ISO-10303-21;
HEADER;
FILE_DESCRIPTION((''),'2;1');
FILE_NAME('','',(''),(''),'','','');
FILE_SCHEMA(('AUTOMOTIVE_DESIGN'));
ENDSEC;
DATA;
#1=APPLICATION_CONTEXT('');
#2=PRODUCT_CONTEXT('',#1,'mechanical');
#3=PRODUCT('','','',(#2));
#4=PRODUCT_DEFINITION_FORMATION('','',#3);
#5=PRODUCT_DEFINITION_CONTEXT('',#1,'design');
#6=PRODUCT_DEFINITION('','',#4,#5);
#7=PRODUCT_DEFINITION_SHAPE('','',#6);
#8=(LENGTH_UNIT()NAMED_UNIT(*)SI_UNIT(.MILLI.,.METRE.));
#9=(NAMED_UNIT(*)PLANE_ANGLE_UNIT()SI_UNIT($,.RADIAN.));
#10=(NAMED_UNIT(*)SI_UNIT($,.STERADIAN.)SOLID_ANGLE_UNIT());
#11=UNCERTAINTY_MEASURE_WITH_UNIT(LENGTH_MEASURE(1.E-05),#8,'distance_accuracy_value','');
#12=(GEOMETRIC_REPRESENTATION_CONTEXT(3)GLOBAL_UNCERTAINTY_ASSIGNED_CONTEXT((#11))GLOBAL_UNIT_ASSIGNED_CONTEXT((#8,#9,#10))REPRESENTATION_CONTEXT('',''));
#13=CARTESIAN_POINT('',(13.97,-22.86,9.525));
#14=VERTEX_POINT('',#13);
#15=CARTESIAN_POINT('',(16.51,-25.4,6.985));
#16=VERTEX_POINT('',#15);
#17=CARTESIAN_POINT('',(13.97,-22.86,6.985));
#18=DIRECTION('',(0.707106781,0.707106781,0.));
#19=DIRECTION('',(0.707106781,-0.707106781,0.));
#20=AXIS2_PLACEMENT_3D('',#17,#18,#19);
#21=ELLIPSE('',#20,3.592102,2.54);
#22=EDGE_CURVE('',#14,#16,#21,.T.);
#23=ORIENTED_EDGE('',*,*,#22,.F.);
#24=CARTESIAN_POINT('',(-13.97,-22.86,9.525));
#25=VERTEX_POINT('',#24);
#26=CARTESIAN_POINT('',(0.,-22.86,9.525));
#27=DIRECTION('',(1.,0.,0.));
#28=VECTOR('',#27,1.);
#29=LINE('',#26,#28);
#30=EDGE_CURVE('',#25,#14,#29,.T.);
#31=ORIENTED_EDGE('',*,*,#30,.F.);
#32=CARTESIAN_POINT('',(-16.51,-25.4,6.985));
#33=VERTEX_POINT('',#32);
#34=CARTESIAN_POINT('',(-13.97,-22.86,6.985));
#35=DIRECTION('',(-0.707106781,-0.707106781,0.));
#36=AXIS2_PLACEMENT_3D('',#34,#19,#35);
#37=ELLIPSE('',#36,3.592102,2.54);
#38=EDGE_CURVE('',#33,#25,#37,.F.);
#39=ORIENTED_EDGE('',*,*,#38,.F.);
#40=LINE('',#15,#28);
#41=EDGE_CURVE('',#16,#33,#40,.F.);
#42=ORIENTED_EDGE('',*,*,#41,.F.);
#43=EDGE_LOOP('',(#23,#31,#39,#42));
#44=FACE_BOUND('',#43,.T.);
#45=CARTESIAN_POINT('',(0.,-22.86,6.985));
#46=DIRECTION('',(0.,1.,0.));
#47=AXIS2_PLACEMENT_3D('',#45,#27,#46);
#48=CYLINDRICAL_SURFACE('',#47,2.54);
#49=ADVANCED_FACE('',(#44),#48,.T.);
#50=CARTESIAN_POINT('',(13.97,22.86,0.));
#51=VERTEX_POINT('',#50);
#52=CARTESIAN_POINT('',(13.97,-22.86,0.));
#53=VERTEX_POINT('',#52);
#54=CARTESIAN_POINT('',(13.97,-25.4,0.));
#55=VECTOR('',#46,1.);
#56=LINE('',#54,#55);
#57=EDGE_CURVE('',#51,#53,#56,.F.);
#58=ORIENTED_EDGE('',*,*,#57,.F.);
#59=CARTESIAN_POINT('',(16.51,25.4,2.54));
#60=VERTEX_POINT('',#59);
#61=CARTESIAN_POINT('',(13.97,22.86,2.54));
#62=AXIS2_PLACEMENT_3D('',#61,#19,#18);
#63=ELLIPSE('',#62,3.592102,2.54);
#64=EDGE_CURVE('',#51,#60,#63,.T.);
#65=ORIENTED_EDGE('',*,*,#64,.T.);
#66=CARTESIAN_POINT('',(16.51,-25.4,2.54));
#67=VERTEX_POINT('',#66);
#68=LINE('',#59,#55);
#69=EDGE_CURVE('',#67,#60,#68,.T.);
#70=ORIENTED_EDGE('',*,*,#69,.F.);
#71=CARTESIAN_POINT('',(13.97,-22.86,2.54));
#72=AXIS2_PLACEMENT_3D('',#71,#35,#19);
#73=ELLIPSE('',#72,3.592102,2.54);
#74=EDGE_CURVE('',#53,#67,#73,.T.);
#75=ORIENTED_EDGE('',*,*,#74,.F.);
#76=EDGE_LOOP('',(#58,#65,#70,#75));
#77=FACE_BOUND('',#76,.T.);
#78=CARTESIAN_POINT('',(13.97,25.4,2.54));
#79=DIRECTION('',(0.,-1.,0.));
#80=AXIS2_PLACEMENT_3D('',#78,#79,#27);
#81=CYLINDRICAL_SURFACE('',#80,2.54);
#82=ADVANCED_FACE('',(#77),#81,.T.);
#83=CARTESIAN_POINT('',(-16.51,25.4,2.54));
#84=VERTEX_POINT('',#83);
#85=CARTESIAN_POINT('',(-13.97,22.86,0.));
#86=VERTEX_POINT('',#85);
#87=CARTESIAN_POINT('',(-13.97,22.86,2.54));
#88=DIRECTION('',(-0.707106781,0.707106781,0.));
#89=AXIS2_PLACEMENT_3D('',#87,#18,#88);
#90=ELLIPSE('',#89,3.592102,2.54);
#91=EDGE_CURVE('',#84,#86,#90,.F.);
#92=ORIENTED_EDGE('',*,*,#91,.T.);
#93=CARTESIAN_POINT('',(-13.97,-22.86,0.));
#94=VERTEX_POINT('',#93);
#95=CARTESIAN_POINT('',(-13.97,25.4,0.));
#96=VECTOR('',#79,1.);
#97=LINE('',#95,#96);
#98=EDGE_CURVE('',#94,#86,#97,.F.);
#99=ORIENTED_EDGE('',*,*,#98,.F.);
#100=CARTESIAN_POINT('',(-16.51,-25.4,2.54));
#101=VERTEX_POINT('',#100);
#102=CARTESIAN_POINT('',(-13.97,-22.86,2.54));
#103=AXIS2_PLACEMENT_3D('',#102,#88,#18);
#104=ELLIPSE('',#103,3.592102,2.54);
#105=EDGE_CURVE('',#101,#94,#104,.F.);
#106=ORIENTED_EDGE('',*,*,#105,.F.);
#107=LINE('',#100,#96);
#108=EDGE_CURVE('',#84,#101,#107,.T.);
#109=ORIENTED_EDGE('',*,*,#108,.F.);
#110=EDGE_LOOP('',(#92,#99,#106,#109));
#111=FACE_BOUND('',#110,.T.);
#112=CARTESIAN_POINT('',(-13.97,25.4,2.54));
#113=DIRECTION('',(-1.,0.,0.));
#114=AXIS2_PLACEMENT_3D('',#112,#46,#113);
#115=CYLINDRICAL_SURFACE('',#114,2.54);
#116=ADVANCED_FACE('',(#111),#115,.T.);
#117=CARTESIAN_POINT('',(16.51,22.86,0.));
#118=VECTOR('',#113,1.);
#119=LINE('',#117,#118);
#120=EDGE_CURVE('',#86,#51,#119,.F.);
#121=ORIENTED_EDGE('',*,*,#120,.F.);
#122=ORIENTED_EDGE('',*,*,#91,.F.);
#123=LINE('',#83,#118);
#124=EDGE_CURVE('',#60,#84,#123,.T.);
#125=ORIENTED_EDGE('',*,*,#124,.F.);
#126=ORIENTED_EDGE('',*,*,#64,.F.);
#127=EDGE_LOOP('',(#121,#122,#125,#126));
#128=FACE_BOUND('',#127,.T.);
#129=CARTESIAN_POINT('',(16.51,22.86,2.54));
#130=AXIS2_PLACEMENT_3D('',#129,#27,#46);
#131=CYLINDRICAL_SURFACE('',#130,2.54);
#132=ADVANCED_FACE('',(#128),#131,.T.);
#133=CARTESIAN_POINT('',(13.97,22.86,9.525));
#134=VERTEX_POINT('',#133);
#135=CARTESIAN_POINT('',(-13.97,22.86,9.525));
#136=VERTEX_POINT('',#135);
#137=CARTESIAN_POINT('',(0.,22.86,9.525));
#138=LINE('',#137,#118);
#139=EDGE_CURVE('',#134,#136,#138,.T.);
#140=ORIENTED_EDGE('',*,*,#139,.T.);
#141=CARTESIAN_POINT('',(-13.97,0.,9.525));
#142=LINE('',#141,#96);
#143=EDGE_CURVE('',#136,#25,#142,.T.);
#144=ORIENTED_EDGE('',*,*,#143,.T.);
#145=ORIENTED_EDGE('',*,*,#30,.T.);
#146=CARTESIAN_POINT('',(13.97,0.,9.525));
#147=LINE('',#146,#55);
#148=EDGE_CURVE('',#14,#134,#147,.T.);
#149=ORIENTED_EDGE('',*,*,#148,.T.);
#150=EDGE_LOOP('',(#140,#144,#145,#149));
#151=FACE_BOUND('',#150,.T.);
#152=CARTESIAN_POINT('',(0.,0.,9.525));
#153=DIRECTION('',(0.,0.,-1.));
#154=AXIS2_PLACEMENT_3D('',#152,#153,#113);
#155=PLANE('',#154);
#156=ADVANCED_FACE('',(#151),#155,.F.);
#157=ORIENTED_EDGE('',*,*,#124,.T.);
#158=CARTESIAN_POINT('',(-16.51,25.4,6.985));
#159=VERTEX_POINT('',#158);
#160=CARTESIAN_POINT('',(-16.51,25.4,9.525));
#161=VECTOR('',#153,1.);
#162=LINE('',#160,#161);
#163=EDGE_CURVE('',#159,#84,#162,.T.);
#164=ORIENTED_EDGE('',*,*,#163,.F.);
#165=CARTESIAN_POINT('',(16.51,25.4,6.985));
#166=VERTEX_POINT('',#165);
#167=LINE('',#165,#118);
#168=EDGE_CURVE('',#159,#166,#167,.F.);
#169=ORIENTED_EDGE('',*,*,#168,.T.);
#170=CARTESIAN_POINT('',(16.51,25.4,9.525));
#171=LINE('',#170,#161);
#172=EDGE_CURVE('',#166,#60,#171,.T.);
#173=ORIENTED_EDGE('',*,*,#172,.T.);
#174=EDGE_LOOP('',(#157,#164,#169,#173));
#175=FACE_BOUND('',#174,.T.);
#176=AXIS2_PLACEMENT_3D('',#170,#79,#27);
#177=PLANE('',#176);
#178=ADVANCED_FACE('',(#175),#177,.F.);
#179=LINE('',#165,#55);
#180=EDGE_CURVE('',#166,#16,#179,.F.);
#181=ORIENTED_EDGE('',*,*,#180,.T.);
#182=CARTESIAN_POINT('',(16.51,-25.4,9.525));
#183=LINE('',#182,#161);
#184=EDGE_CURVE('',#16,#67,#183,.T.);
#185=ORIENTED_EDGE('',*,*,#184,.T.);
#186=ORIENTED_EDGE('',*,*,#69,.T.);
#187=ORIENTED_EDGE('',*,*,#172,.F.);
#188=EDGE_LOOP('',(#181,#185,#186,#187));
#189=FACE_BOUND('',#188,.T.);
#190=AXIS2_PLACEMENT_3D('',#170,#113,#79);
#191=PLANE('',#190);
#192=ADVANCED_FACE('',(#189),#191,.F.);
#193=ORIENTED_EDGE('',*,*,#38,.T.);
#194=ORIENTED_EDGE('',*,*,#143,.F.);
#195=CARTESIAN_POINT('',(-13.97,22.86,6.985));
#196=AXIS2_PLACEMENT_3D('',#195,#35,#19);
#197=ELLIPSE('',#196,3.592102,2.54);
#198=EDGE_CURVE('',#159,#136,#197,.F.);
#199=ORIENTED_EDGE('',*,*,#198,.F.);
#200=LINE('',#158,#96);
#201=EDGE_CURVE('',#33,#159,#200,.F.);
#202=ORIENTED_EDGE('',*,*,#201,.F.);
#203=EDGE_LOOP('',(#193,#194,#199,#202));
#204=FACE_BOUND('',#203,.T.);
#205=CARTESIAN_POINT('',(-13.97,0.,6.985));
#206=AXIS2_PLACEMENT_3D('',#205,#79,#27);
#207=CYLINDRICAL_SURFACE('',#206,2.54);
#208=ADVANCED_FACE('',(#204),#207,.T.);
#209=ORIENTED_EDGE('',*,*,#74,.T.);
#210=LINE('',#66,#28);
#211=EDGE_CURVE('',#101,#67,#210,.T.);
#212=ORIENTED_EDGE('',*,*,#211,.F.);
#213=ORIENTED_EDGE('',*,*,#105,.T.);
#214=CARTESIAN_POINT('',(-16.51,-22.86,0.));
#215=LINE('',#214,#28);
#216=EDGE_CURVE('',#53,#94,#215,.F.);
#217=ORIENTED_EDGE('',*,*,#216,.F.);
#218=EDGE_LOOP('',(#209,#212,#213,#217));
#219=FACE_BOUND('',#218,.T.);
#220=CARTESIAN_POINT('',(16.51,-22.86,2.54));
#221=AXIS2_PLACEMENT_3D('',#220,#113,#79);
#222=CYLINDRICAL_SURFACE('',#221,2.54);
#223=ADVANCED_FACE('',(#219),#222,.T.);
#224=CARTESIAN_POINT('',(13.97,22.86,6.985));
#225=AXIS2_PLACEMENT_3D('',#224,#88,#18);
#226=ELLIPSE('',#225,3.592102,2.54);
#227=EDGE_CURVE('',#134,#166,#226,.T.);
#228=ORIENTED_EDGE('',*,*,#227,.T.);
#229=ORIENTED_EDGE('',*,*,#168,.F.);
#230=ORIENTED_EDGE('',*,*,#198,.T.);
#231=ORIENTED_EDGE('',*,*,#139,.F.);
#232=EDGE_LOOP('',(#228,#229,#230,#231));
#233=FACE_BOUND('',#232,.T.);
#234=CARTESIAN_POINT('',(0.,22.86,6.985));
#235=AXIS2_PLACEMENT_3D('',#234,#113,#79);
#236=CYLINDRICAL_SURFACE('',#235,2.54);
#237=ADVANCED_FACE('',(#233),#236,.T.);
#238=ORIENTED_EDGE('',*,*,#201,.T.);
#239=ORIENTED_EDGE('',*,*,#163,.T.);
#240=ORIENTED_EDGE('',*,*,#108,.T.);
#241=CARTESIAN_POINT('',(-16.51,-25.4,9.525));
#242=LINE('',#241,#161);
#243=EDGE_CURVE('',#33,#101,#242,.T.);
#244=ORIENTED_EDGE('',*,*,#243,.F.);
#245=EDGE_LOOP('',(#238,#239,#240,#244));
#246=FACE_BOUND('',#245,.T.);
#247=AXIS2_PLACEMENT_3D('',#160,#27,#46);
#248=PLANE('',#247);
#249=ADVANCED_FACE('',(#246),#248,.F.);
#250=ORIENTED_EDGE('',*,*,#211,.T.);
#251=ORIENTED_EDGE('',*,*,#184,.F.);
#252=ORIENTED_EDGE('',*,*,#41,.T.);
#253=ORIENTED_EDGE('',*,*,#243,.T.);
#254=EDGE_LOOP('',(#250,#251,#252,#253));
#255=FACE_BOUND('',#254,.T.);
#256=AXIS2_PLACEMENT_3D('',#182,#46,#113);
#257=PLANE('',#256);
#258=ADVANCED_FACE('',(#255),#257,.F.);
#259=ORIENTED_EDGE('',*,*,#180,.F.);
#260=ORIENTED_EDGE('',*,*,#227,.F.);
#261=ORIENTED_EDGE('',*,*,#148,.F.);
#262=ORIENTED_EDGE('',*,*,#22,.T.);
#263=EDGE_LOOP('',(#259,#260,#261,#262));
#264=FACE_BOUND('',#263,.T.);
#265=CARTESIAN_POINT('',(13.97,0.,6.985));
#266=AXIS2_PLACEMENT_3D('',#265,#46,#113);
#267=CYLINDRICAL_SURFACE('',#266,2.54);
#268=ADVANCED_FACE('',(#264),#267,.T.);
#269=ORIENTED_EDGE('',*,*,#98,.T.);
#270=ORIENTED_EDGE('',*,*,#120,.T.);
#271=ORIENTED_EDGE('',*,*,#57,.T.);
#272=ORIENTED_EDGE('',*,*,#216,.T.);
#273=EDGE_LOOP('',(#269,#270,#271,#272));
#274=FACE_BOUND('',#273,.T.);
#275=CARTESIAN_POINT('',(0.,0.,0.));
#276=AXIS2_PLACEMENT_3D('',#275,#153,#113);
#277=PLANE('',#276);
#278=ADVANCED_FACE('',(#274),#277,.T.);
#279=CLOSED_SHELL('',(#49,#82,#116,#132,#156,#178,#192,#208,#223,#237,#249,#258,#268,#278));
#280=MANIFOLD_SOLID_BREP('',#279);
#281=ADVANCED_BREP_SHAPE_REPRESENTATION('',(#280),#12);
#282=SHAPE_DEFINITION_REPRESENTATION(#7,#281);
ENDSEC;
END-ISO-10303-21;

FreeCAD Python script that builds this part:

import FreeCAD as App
import Part
import Sketcher
from FreeCAD import Vector
Q = App.Units.Quantity


def edges_at(feature, points):
    """Names of the edges that pass closest to the given points."""
    edges = feature.Shape.Edges
    near = lambda p: min(range(len(edges)), key=lambda i: edges[i].distToShape(Part.Vertex(*p))[0])
    return sorted({f"Edge{near(p) + 1}" for p in points})

doc = App.newDocument("Part")
body = doc.addObject("PartDesign::Body", "Body")

# Sketch on XY plane
sketch1 = body.newObject("Sketcher::SketchObject", "Sketch")
sketch1.AttachmentSupport = (doc.getObject("XY_Plane"), [""])
sketch1.MapMode = "FlatFace"
sketch1.addGeometry([
    Part.LineSegment(Vector(-17, 25, 0), Vector(-17, -25, 0)),
    Part.LineSegment(Vector(-17, -25, 0), Vector(17, -25, 0)),
    Part.LineSegment(Vector(17, -25, 0), Vector(17, 25, 0)),
    Part.LineSegment(Vector(17, 25, 0), Vector(-17, 25, 0)),
], False)
sketch1.addConstraint([
    Sketcher.Constraint("Coincident", 0, 2, 1, 1),
    Sketcher.Constraint("Coincident", 1, 2, 2, 1),
    Sketcher.Constraint("Coincident", 2, 2, 3, 1),
    Sketcher.Constraint("Coincident", 3, 2, 0, 1),
    Sketcher.Constraint("Vertical", 0),
    Sketcher.Constraint("Horizontal", 1),
    Sketcher.Constraint("Vertical", 2),
    Sketcher.Constraint("Horizontal", 3),
    Sketcher.Constraint("Symmetric", 0, 2, 2, 2, -1, 1),
    Sketcher.Constraint("DistanceY", 0, 2, 0, 1, Q("2 in")),
    Sketcher.Constraint("DistanceX", 1, 1, 1, 2, Q("1.3 in")),
])
pad1 = body.newObject("PartDesign::Pad", "Pad")
pad1.Profile = sketch1
pad1.Length = Q("0.375 in")
doc.recompute()

fillet = body.newObject("PartDesign::Fillet", "Fillet")
fillet.Base = (pad1, edges_at(pad1, [
    (16.51, 0, 9.525),
    (0, 25.4, 9.525),
    (-16.51, 0, 9.525),
    (0, 25.4, 0),
    (16.51, 0, 0),
    (0, -25.4, 0),
    (-16.51, 0, 0),
    (0, -25.4, 9.525),
]))
fillet.Radius = Q("0.1 in")

doc.recompute()
